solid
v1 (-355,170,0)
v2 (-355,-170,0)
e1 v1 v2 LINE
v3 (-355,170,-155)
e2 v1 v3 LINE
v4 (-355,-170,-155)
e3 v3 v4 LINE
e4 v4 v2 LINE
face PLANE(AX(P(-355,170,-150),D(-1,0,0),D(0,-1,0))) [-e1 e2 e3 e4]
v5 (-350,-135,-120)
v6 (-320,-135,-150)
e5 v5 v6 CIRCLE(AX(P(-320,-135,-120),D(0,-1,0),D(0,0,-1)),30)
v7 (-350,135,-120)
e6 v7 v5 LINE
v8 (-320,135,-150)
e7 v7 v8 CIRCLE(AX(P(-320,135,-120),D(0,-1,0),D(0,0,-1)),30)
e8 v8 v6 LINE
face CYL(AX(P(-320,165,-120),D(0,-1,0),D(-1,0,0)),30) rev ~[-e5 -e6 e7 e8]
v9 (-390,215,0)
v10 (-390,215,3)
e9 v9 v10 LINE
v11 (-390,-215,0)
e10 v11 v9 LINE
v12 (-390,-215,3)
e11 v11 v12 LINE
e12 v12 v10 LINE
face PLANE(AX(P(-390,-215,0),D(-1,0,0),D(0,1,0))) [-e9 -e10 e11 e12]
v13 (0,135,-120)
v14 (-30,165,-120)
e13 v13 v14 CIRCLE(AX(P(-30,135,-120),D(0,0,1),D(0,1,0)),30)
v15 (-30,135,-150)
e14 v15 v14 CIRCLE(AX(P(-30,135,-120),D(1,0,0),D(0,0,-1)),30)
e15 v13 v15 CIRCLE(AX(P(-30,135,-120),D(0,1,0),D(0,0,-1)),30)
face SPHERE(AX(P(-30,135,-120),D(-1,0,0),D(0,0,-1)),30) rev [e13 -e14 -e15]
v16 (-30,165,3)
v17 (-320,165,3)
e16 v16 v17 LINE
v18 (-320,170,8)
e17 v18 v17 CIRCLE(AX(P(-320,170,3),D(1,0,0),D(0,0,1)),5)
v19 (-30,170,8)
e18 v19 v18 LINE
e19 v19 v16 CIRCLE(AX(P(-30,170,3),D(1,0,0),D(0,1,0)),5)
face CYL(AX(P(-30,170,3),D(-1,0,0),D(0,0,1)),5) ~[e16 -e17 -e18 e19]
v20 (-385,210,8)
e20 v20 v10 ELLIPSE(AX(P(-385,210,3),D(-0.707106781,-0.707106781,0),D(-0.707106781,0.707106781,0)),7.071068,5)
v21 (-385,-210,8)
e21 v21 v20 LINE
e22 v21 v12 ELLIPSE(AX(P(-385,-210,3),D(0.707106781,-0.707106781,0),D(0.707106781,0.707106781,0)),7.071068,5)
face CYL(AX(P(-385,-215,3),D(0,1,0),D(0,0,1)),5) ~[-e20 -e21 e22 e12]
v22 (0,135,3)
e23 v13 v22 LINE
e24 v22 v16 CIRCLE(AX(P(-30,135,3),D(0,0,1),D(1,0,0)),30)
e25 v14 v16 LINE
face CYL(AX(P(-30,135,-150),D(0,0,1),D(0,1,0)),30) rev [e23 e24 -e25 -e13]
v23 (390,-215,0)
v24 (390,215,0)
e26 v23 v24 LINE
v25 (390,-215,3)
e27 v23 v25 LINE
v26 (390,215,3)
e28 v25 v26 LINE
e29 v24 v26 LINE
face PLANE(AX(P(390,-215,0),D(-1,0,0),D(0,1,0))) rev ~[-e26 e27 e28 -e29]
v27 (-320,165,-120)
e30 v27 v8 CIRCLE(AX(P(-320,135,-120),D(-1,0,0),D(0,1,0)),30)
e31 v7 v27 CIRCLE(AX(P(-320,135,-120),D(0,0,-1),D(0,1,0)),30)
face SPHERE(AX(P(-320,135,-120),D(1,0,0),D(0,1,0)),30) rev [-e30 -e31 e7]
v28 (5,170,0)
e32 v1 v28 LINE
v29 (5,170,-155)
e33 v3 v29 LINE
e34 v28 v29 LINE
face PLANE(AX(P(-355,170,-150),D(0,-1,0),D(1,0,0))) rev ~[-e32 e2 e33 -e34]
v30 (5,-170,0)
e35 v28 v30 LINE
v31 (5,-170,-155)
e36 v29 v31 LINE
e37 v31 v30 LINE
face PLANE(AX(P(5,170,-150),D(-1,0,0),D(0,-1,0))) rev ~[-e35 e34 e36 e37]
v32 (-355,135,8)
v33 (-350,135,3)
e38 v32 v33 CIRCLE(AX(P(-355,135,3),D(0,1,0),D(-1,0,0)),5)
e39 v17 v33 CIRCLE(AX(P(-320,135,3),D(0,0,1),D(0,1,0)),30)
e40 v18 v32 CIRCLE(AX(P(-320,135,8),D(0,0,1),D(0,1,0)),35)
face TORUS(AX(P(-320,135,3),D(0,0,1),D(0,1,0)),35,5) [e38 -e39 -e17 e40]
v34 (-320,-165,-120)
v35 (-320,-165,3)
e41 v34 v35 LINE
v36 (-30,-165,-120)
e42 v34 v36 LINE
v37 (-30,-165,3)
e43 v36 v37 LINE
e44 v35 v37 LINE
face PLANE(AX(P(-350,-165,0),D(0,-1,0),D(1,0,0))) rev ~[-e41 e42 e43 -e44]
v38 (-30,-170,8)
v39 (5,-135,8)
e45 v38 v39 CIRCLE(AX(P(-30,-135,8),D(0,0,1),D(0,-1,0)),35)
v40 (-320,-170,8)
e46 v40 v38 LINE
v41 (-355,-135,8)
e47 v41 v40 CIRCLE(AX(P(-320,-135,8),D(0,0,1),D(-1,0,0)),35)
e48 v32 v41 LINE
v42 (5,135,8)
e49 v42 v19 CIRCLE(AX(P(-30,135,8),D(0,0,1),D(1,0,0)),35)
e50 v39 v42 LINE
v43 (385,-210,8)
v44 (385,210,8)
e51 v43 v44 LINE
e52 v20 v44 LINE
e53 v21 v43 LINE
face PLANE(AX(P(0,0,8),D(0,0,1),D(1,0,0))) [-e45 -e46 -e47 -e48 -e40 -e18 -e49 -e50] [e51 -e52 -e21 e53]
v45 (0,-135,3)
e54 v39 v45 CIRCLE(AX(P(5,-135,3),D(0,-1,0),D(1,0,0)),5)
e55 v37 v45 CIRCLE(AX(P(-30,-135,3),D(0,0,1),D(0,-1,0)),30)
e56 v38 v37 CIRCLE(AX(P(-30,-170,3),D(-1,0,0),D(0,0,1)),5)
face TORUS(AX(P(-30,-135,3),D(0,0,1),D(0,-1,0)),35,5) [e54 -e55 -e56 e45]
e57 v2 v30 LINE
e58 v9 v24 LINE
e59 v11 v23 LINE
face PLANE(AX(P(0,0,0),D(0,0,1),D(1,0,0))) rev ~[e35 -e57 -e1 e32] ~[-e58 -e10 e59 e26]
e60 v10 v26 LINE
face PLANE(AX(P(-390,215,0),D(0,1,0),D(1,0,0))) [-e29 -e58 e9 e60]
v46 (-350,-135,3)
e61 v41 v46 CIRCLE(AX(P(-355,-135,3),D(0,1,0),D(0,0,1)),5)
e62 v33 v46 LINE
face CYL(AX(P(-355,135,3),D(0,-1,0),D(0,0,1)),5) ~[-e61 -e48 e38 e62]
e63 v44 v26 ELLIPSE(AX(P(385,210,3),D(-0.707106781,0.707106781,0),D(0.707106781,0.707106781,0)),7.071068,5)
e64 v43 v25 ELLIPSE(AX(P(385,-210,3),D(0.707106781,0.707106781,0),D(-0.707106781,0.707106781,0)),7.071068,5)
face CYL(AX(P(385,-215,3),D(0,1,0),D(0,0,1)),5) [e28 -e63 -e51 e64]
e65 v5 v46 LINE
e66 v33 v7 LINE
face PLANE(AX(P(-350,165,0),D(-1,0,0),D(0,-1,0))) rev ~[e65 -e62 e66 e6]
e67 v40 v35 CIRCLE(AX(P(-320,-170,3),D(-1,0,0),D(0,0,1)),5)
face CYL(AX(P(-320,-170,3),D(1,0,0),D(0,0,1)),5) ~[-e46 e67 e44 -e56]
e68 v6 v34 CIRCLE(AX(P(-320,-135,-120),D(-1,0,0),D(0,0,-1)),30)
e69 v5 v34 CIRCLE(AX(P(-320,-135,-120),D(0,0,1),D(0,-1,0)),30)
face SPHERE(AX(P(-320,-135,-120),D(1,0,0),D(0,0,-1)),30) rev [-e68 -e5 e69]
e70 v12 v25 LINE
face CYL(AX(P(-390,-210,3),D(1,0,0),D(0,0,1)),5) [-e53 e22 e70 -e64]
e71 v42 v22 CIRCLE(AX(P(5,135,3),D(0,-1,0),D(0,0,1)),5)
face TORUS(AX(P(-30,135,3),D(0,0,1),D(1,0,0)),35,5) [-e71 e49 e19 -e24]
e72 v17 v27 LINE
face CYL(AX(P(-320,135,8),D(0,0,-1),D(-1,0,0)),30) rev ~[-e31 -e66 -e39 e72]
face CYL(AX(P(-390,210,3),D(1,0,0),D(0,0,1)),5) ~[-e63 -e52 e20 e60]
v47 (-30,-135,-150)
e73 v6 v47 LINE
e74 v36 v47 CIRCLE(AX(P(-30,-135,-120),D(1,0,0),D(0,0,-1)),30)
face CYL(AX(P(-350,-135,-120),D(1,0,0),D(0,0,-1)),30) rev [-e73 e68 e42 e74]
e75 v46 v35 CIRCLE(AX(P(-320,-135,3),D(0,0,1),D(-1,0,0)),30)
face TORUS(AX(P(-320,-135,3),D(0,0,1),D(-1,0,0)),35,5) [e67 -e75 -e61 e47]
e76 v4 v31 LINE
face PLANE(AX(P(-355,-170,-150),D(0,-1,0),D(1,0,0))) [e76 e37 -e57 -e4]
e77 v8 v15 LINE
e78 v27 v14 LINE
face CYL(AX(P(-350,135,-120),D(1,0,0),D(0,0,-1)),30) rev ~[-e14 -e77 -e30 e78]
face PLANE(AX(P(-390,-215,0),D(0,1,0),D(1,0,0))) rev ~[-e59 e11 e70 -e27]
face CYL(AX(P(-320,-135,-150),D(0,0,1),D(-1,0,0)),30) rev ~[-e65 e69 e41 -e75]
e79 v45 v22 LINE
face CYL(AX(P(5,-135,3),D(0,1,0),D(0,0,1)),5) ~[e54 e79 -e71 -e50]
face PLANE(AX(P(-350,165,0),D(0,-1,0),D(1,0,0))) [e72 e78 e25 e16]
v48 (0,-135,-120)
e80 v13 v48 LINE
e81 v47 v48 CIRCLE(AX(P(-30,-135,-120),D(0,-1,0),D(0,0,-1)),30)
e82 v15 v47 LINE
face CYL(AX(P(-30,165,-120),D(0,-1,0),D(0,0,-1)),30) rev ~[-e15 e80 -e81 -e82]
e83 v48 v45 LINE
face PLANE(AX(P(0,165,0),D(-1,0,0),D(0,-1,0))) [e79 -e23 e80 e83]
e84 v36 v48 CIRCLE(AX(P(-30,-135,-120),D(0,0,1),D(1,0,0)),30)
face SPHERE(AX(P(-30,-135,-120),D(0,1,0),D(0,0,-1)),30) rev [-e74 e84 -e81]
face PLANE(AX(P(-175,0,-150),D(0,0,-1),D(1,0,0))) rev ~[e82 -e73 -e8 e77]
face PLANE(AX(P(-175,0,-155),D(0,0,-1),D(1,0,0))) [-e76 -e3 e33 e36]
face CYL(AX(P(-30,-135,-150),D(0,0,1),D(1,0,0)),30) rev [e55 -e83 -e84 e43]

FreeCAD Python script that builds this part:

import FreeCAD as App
import Part
import Sketcher
from FreeCAD import Vector
Q = App.Units.Quantity


def edges_at(feature, points):
    """Names of the edges that pass closest to the given points."""
    edges = feature.Shape.Edges
    near = lambda p: min(range(len(edges)), key=lambda i: edges[i].distToShape(Part.Vertex(*p))[0])
    return sorted({f"Edge{near(p) + 1}" for p in points})

doc = App.newDocument("Part")
body = doc.addObject("PartDesign::Body", "Body")

# Sketch on XY plane
sketch1 = doc.addObject("Sketcher::SketchObject", "Sketch")
body.addObject(sketch1)
sketch1.AttachmentSupport = (doc.XY_Plane, [""])
sketch1.MapMode = "FlatFace"
sketch1.addGeometry(Part.LineSegment(Vector(-390, 215, 0), Vector(-390, -215, 0)), False)
sketch1.addGeometry(Part.LineSegment(Vector(-390, -215, 0), Vector(390, -215, 0)), False)
sketch1.addGeometry(Part.LineSegment(Vector(390, -215, 0), Vector(390, 215, 0)), False)
sketch1.addGeometry(Part.LineSegment(Vector(390, 215, 0), Vector(-390, 215, 0)), False)
sketch1.addConstraint(Sketcher.Constraint("Coincident", 0, 2, 1, 1))
sketch1.addConstraint(Sketcher.Constraint("Coincident", 1, 2, 2, 1))
sketch1.addConstraint(Sketcher.Constraint("Coincident", 2, 2, 3, 1))
sketch1.addConstraint(Sketcher.Constraint("Coincident", 3, 2, 0, 1))
sketch1.addConstraint(Sketcher.Constraint("Vertical", 0))
sketch1.addConstraint(Sketcher.Constraint("Horizontal", 1))
sketch1.addConstraint(Sketcher.Constraint("Vertical", 2))
sketch1.addConstraint(Sketcher.Constraint("Horizontal", 3))
sketch1.addConstraint(Sketcher.Constraint("Symmetric", 0, 2, 2, 2, -1, 1))
sketch1.addConstraint(Sketcher.Constraint("DistanceX", 1, 1, 1, 2, Q("780 mm")))
sketch1.addConstraint(Sketcher.Constraint("DistanceY", 0, 2, 0, 1, Q("430 mm")))
pad1 = doc.addObject("PartDesign::Pad", "Pad")
body.addObject(pad1)
pad1.Profile = sketch1
pad1.Length = 8

# Sketch on XY plane
sketch2 = doc.addObject("Sketcher::SketchObject", "Sketch001")
body.addObject(sketch2)
sketch2.AttachmentSupport = (doc.XY_Plane, [""])
sketch2.MapMode = "FlatFace"
sketch2.AttachmentOffset = App.Placement(Vector(0, 0, 8), App.Rotation())
sketch2.addGeometry(Part.LineSegment(Vector(-350, 165, 0), Vector(-350, -165, 0)), False)
sketch2.addGeometry(Part.LineSegment(Vector(-350, -165, 0), Vector(0, -165, 0)), False)
sketch2.addGeometry(Part.LineSegment(Vector(0, -165, 0), Vector(0, 165, 0)), False)
sketch2.addGeometry(Part.LineSegment(Vector(0, 165, 0), Vector(-350, 165, 0)), False)
sketch2.addConstraint(Sketcher.Constraint("Coincident", 0, 2, 1, 1))
sketch2.addConstraint(Sketcher.Constraint("Coincident", 1, 2, 2, 1))
sketch2.addConstraint(Sketcher.Constraint("Coincident", 2, 2, 3, 1))
sketch2.addConstraint(Sketcher.Constraint("Coincident", 3, 2, 0, 1))
sketch2.addConstraint(Sketcher.Constraint("Vertical", 0))
sketch2.addConstraint(Sketcher.Constraint("Horizontal", 1))
sketch2.addConstraint(Sketcher.Constraint("Vertical", 2))
sketch2.addConstraint(Sketcher.Constraint("Horizontal", 3))
sketch2.addConstraint(Sketcher.Constraint("Symmetric", 1, 2, 2, 2, -1, 1))
sketch2.addConstraint(Sketcher.Constraint("DistanceX", 1, 1, 1, 2, Q("350 mm")))
sketch2.addConstraint(Sketcher.Constraint("DistanceY", 0, 2, 0, 1, Q("330 mm")))
pocket1 = doc.addObject("PartDesign::Pocket", "Pocket")
body.addObject(pocket1)
pocket1.Profile = sketch2
pocket1.Length = 25

# Sketch on XY plane
sketch3 = doc.addObject("Sketcher::SketchObject", "Sketch002")
body.addObject(sketch3)
sketch3.AttachmentSupport = (doc.XY_Plane, [""])
sketch3.MapMode = "FlatFace"
sketch3.addGeometry(Part.LineSegment(Vector(-355, -170, 0), Vector(-355, 170, 0)), False)
sketch3.addGeometry(Part.LineSegment(Vector(-355, 170, 0), Vector(5, 170, 0)), False)
sketch3.addGeometry(Part.LineSegment(Vector(5, 170, 0), Vector(5, -170, 0)), False)
sketch3.addGeometry(Part.LineSegment(Vector(5, -170, 0), Vector(-355, -170, 0)), False)
sketch3.addGeometry(Part.LineSegment(Vector(0, 165, 0), Vector(-350, 165, 0)), False)
sketch3.addGeometry(Part.LineSegment(Vector(-350, 165, 0), Vector(-350, -165, 0)), False)
sketch3.addGeometry(Part.LineSegment(Vector(-350, -165, 0), Vector(0, -165, 0)), False)
sketch3.addGeometry(Part.LineSegment(Vector(0, -165, 0), Vector(0, 165, 0)), False)
sketch3.addConstraint(Sketcher.Constraint("Coincident", 0, 2, 1, 1))
sketch3.addConstraint(Sketcher.Constraint("Coincident", 1, 2, 2, 1))
sketch3.addConstraint(Sketcher.Constraint("Coincident", 2, 2, 3, 1))
sketch3.addConstraint(Sketcher.Constraint("Coincident", 3, 2, 0, 1))
sketch3.addConstraint(Sketcher.Constraint("Coincident", 4, 2, 5, 1))
sketch3.addConstraint(Sketcher.Constraint("Coincident", 5, 2, 6, 1))
sketch3.addConstraint(Sketcher.Constraint("Coincident", 6, 2, 7, 1))
sketch3.addConstraint(Sketcher.Constraint("Coincident", 7, 2, 4, 1))
sketch3.addConstraint(Sketcher.Constraint("Vertical", 0))
sketch3.addConstraint(Sketcher.Constraint("Horizontal", 1))
sketch3.addConstraint(Sketcher.Constraint("Vertical", 2))
sketch3.addConstraint(Sketcher.Constraint("Horizontal", 3))
sketch3.addConstraint(Sketcher.Constraint("Horizontal", 4))
sketch3.addConstraint(Sketcher.Constraint("Vertical", 5))
sketch3.addConstraint(Sketcher.Constraint("Horizontal", 6))
sketch3.addConstraint(Sketcher.Constraint("Vertical", 7))
sketch3.addConstraint(Sketcher.Constraint("Symmetric", 6, 2, 7, 2, -1, 1))
sketch3.addConstraint(Sketcher.Constraint("DistanceX", 1, 1, 1, 2, Q("360 mm")))
sketch3.addConstraint(Sketcher.Constraint("DistanceX", 4, 2, 4, 1, Q("350 mm")))
sketch3.addConstraint(Sketcher.Constraint("DistanceY", 0, 1, 0, 2, Q("340 mm")))
sketch3.addConstraint(Sketcher.Constraint("DistanceY", 5, 2, 5, 1, Q("330 mm")))
sketch3.addConstraint(Sketcher.Constraint("DistanceX", 0, 2, -1, 1, Q("355 mm")))
sketch3.addConstraint(Sketcher.Constraint("DistanceY", -1, 1, 0, 2, Q("170 mm")))
pad2 = doc.addObject("PartDesign::Pad", "Pad001")
body.addObject(pad2)
pad2.Profile = sketch3
pad2.Length = 150
pad2.Reversed = True

# Sketch on XY plane
sketch4 = doc.addObject("Sketcher::SketchObject", "Sketch003")
body.addObject(sketch4)
sketch4.AttachmentSupport = (doc.XY_Plane, [""])
sketch4.MapMode = "FlatFace"
sketch4.AttachmentOffset = App.Placement(Vector(0, 0, -150), App.Rotation())
sketch4.addGeometry(Part.LineSegment(Vector(-355, -170, 0), Vector(-355, 170, 0)), False)
sketch4.addGeometry(Part.LineSegment(Vector(-355, 170, 0), Vector(5, 170, 0)), False)
sketch4.addGeometry(Part.LineSegment(Vector(5, 170, 0), Vector(5, -170, 0)), False)
sketch4.addGeometry(Part.LineSegment(Vector(5, -170, 0), Vector(-355, -170, 0)), False)
sketch4.addConstraint(Sketcher.Constraint("Coincident", 0, 2, 1, 1))
sketch4.addConstraint(Sketcher.Constraint("Coincident", 1, 2, 2, 1))
sketch4.addConstraint(Sketcher.Constraint("Coincident", 2, 2, 3, 1))
sketch4.addConstraint(Sketcher.Constraint("Coincident", 3, 2, 0, 1))
sketch4.addConstraint(Sketcher.Constraint("Vertical", 0))
sketch4.addConstraint(Sketcher.Constraint("Horizontal", 1))
sketch4.addConstraint(Sketcher.Constraint("Vertical", 2))
sketch4.addConstraint(Sketcher.Constraint("Horizontal", 3))
sketch4.addConstraint(Sketcher.Constraint("DistanceX", 1, 1, 1, 2, Q("360 mm")))
sketch4.addConstraint(Sketcher.Constraint("DistanceY", 0, 1, 0, 2, Q("340 mm")))
sketch4.addConstraint(Sketcher.Constraint("DistanceX", 0, 2, -1, 1, Q("355 mm")))
sketch4.addConstraint(Sketcher.Constraint("DistanceY", -1, 1, 0, 2, Q("170 mm")))
pad3 = doc.addObject("PartDesign::Pad", "Pad002")
body.addObject(pad3)
pad3.Profile = sketch4
pad3.Length = 5
pad3.Reversed = True
doc.recompute()

fillet = doc.addObject("PartDesign::Fillet", "Fillet")
body.addObject(fillet)
fillet.Base = (pad3, edges_at(pad3, [
    (-175, 165, -150),
    (0, 0, -150),
    (-175, -165, -150),
    (0, -165, -71),
    (0, 165, -71),
    (-350, 165, -71),
    (-350, 0, -150),
    (-350, -165, -71),
]))
fillet.Radius = 30
doc.recompute()

fillet2 = doc.addObject("PartDesign::Fillet", "Fillet001")
body.addObject(fillet2)
fillet2.Base = (fillet, edges_at(fillet, [
    (-390, 0, 8),
    (-175, -165, 8),
    (-341.213, -156.213, 8),
    (-8.787, -156.213, 8),
    (-350, 0, 8),
    (0, 0, 8),
    (-341.213, 156.213, 8),
    (-8.787, 156.213, 8),
    (-175, 165, 8),
    (390, 0, 8),
    (0, -215, 8),
    (0, 215, 8),
]))
fillet2.Radius = 5

doc.recompute()
